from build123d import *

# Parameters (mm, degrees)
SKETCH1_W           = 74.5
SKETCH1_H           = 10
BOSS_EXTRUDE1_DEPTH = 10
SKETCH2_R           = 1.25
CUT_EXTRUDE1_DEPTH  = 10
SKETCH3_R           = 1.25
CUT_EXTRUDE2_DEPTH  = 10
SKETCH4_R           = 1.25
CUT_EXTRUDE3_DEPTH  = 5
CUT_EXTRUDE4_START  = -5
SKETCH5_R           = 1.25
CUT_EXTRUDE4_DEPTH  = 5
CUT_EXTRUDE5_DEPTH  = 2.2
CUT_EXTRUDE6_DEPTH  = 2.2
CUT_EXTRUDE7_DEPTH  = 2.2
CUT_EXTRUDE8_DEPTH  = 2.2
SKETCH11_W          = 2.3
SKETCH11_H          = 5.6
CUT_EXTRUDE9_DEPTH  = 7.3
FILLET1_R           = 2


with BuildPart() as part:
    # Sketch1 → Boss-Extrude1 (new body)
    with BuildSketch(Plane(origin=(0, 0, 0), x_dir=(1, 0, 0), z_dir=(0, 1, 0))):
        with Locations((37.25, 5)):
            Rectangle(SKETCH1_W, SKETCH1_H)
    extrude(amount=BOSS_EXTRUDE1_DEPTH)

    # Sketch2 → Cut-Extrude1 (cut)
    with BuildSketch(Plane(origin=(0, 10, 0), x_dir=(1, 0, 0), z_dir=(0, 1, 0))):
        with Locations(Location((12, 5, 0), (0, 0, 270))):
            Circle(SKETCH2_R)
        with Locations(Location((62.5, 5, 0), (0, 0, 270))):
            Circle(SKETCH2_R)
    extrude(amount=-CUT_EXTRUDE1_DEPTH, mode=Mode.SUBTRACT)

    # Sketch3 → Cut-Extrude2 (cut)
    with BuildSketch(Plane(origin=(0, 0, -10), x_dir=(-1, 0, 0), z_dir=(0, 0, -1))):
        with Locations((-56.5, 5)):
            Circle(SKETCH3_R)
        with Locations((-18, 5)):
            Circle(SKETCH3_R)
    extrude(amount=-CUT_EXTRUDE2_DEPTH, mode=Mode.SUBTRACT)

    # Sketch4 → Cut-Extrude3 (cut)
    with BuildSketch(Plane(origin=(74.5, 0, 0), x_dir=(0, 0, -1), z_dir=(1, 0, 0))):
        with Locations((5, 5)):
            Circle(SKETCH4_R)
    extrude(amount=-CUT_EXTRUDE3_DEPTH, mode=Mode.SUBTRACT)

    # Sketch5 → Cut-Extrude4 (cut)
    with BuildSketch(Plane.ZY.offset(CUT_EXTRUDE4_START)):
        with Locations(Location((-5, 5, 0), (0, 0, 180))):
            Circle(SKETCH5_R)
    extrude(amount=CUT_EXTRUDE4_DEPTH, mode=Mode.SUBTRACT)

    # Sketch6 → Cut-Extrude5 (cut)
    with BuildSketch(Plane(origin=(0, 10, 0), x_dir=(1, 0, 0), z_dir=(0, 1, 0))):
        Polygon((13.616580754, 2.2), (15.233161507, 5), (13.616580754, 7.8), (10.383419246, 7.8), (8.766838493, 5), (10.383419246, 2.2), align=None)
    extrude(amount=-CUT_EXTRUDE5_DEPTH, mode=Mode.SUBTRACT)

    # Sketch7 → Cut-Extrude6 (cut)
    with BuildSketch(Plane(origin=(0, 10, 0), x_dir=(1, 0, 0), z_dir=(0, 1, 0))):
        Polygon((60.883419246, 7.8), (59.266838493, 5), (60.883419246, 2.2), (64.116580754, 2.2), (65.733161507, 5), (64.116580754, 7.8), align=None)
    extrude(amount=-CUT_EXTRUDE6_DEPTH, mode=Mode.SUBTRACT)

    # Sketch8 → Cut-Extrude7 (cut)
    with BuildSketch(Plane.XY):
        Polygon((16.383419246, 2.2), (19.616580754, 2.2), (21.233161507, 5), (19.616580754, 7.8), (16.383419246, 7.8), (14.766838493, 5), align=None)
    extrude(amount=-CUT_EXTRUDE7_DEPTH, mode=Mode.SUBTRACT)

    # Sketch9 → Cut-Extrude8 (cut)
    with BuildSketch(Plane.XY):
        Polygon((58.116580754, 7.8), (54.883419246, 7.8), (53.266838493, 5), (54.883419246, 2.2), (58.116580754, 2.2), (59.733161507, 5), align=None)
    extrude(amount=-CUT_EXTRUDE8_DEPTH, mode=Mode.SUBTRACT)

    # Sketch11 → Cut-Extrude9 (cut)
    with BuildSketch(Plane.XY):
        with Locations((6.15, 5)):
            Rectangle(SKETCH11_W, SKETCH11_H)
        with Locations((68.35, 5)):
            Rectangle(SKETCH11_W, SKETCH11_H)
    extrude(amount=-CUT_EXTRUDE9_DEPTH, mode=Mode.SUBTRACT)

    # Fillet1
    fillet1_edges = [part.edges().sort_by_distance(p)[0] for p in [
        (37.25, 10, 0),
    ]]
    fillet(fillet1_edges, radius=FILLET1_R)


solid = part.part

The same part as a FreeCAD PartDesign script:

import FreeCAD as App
import Part
import Sketcher
from FreeCAD import Vector
Q = App.Units.Quantity


def edges_at(feature, points):
    """Names of the edges that pass closest to the given points."""
    edges = feature.Shape.Edges
    near = lambda p: min(range(len(edges)), key=lambda i: edges[i].distToShape(Part.Vertex(*p))[0])
    return sorted({f"Edge{near(p) + 1}" for p in points})

doc = App.newDocument("Part")
body = doc.addObject("PartDesign::Body", "Body")

sketch1 = body.newObject("Sketcher::SketchObject", "Sketch")
sketch1.AttachmentSupport = (doc.getObject("XZ_Plane"), [""])
sketch1.MapMode = "FlatFace"
sketch1.addGeometry([
    Part.LineSegment(Vector(0, -10, 0), Vector(0, 0, 0)),
    Part.LineSegment(Vector(0, 0, 0), Vector(74, 0, 0)),
    Part.LineSegment(Vector(74, 0, 0), Vector(74, -10, 0)),
    Part.LineSegment(Vector(74, -10, 0), Vector(0, -10, 0)),
], False)
sketch1.addConstraint([
    Sketcher.Constraint("Coincident", 0, 2, 1, 1),
    Sketcher.Constraint("Coincident", 1, 2, 2, 1),
    Sketcher.Constraint("Coincident", 2, 2, 3, 1),
    Sketcher.Constraint("Coincident", 3, 2, 0, 1),
    Sketcher.Constraint("Vertical", 0),
    Sketcher.Constraint("Horizontal", 1),
    Sketcher.Constraint("Vertical", 2),
    Sketcher.Constraint("Horizontal", 3),
    Sketcher.Constraint("Coincident", 0, 2, -1, 1),
    Sketcher.Constraint("DistanceY", 0, 1, 0, 2, 10.0),
    Sketcher.Constraint("DistanceX", 1, 1, 1, 2, 74.5),
])
pad1 = body.newObject("PartDesign::Pad", "Pad")
pad1.Profile = sketch1
pad1.Length = 10
pad1.Reversed = True

sketch2 = body.newObject("Sketcher::SketchObject", "Sketch001")
sketch2.AttachmentSupport = (doc.getObject("XZ_Plane"), [""])
sketch2.MapMode = "FlatFace"
sketch2.AttachmentOffset = App.Placement(Vector(0, 0, -10), App.Rotation())
sketch2.addGeometry([
    Part.Circle(Vector(12, -5, 0), Vector(0, 0, 1), 1.2),
    Part.Circle(Vector(62.5, -5, 0), Vector(0, 0, 1), 1.2),
], False)
sketch2.addConstraint([
    Sketcher.Constraint("Equal", 0, 1),
    Sketcher.Constraint("Horizontal", 0, 3, 1, 3),
    Sketcher.Constraint("Diameter", 0, 2.5),
    Sketcher.Constraint("DistanceX", -1, 1, 0, 3, 12.0),
    Sketcher.Constraint("DistanceY", 0, 3, -1, 1, 5.0),
    Sketcher.Constraint("DistanceX", -1, 1, 1, 3, 62.5),
])
pocket1 = body.newObject("PartDesign::Pocket", "Pocket")
pocket1.Profile = sketch2
pocket1.Length = 10
pocket1.Reversed = True

sketch3 = body.newObject("Sketcher::SketchObject", "Sketch002")
sketch3.AttachmentSupport = (doc.getObject("XY_Plane"), [""])
sketch3.MapMode = "FlatFace"
sketch3.AttachmentOffset = App.Placement(Vector(0, 0, -10), App.Rotation())
sketch3.addGeometry([
    Part.Circle(Vector(56.5, 5, 0), Vector(0, 0, 1), 1.2),
    Part.Circle(Vector(18, 5, 0), Vector(0, 0, 1), 1.2),
], False)
sketch3.addConstraint([
    Sketcher.Constraint("Equal", 0, 1),
    Sketcher.Constraint("Horizontal", 0, 3, 1, 3),
    Sketcher.Constraint("Diameter", 0, 2.5),
    Sketcher.Constraint("DistanceY", -1, 1, 0, 3, 5.0),
    Sketcher.Constraint("DistanceX", -1, 1, 1, 3, 18.0),
    Sketcher.Constraint("DistanceX", -1, 1, 0, 3, 56.5),
])
pocket2 = body.newObject("PartDesign::Pocket", "Pocket001")
pocket2.Profile = sketch3
pocket2.Length = 10
pocket2.Reversed = True

sketch4 = body.newObject("Sketcher::SketchObject", "Sketch003")
sketch4.AttachmentSupport = (doc.getObject("YZ_Plane"), [""])
sketch4.MapMode = "FlatFace"
sketch4.AttachmentOffset = App.Placement(Vector(0, 0, 74.5), App.Rotation())
sketch4.addGeometry(Part.Circle(Vector(5, -5, 0), Vector(0, 0, 1), 1.2), False)
sketch4.addConstraint([
    Sketcher.Constraint("Diameter", 0, 2.5),
    Sketcher.Constraint("DistanceX", -1, 1, 0, 3, 5.0),
    Sketcher.Constraint("DistanceY", 0, 3, -1, 1, 5.0),
])
pocket3 = body.newObject("PartDesign::Pocket", "Pocket002")
pocket3.Profile = sketch4
pocket3.Length = 5

sketch5 = body.newObject("Sketcher::SketchObject", "Sketch004")
sketch5.AttachmentSupport = (doc.getObject("YZ_Plane"), [""])
sketch5.MapMode = "FlatFace"
sketch5.AttachmentOffset = App.Placement(Vector(0, 0, 5), App.Rotation())
sketch5.addGeometry(Part.Circle(Vector(5, -5, 0), Vector(0, 0, 1), 1.2), False)
sketch5.addConstraint([
    Sketcher.Constraint("Diameter", 0, 2.5),
    Sketcher.Constraint("DistanceX", -1, 1, 0, 3, 5.0),
    Sketcher.Constraint("DistanceY", 0, 3, -1, 1, 5.0),
])
pocket4 = body.newObject("PartDesign::Pocket", "Pocket003")
pocket4.Profile = sketch5
pocket4.Length = 5

sketch6 = body.newObject("Sketcher::SketchObject", "Sketch005")
sketch6.AttachmentSupport = (doc.getObject("XZ_Plane"), [""])
sketch6.MapMode = "FlatFace"
sketch6.AttachmentOffset = App.Placement(Vector(0, 0, -10), App.Rotation())
sketch6.addGeometry([
    Part.LineSegment(Vector(13.6, -2.2, 0), Vector(15.2, -5, 0)),
    Part.LineSegment(Vector(15.2, -5, 0), Vector(13.6, -7.8, 0)),
    Part.LineSegment(Vector(13.6, -7.8, 0), Vector(10.4, -7.8, 0)),
    Part.LineSegment(Vector(10.4, -7.8, 0), Vector(8.8, -5, 0)),
    Part.LineSegment(Vector(8.8, -5, 0), Vector(10.4, -2.2, 0)),
    Part.LineSegment(Vector(10.4, -2.2, 0), Vector(13.6, -2.2, 0)),
], False)
sketch6.addConstraint([
    Sketcher.Constraint("Coincident", 0, 2, 1, 1),
    Sketcher.Constraint("Coincident", 1, 2, 2, 1),
    Sketcher.Constraint("Coincident", 2, 2, 3, 1),
    Sketcher.Constraint("Coincident", 3, 2, 4, 1),
    Sketcher.Constraint("Coincident", 4, 2, 5, 1),
    Sketcher.Constraint("Coincident", 5, 2, 0, 1),
    Sketcher.Constraint("Horizontal", 2),
    Sketcher.Constraint("Horizontal", 5),
    Sketcher.Constraint("Parallel", 0, 3),
    Sketcher.Constraint("Parallel", 1, 4),
    Sketcher.Constraint("Horizontal", 0, 2, 3, 2),
    Sketcher.Constraint("Vertical", 2, 2, 4, 2),
    Sketcher.Constraint("Vertical", 1, 2, 5, 2),
    Sketcher.Constraint("Angle", 0, Q("-60 deg")),
    Sketcher.Constraint("DistanceY", 0, 2, -1, 1, 5.0),
    Sketcher.Constraint("DistanceY", 1, 2, -1, 1, 7.8),
    Sketcher.Constraint("DistanceX", 2, 2, 2, 1, 3.233162),
    Sketcher.Constraint("DistanceX", -1, 1, 0, 2, 15.233162),
])
pocket5 = body.newObject("PartDesign::Pocket", "Pocket004")
pocket5.Profile = sketch6
pocket5.Length = 2.2
pocket5.Reversed = True

sketch7 = body.newObject("Sketcher::SketchObject", "Sketch006")
sketch7.AttachmentSupport = (doc.getObject("XZ_Plane"), [""])
sketch7.MapMode = "FlatFace"
sketch7.AttachmentOffset = App.Placement(Vector(0, 0, -10), App.Rotation())
sketch7.addGeometry([
    Part.LineSegment(Vector(60.9, -7.8, 0), Vector(59.3, -5, 0)),
    Part.LineSegment(Vector(59.3, -5, 0), Vector(60.9, -2.2, 0)),
    Part.LineSegment(Vector(60.9, -2.2, 0), Vector(64.1, -2.2, 0)),
    Part.LineSegment(Vector(64.1, -2.2, 0), Vector(65.7, -5, 0)),
    Part.LineSegment(Vector(65.7, -5, 0), Vector(64.1, -7.8, 0)),
    Part.LineSegment(Vector(64.1, -7.8, 0), Vector(60.9, -7.8, 0)),
], False)
sketch7.addConstraint([
    Sketcher.Constraint("Coincident", 0, 2, 1, 1),
    Sketcher.Constraint("Coincident", 1, 2, 2, 1),
    Sketcher.Constraint("Coincident", 2, 2, 3, 1),
    Sketcher.Constraint("Coincident", 3, 2, 4, 1),
    Sketcher.Constraint("Coincident", 4, 2, 5, 1),
    Sketcher.Constraint("Coincident", 5, 2, 0, 1),
    Sketcher.Constraint("Horizontal", 2),
    Sketcher.Constraint("Horizontal", 5),
    Sketcher.Constraint("Parallel", 0, 3),
    Sketcher.Constraint("Parallel", 1, 4),
    Sketcher.Constraint("Horizontal", 0, 2, 3, 2),
    Sketcher.Constraint("Vertical", 2, 2, 4, 2),
    Sketcher.Constraint("Vertical", 1, 2, 5, 2),
    Sketcher.Constraint("Angle", 0, Q("120 deg")),
    Sketcher.Constraint("DistanceY", 0, 2, -1, 1, 5.0),
    Sketcher.Constraint("DistanceY", 1, 2, -1, 1, 2.2),
    Sketcher.Constraint("DistanceX", 2, 1, 2, 2, 3.233162),
    Sketcher.Constraint("DistanceX", -1, 1, 0, 2, 59.266838),
])
pocket6 = body.newObject("PartDesign::Pocket", "Pocket005")
pocket6.Profile = sketch7
pocket6.Length = 2.2
pocket6.Reversed = True

sketch8 = body.newObject("Sketcher::SketchObject", "Sketch007")
sketch8.AttachmentSupport = (doc.getObject("XY_Plane"), [""])
sketch8.MapMode = "FlatFace"
sketch8.addGeometry([
    Part.LineSegment(Vector(16.4, 2.2, 0), Vector(19.6, 2.2, 0)),
    Part.LineSegment(Vector(19.6, 2.2, 0), Vector(21.2, 5, 0)),
    Part.LineSegment(Vector(21.2, 5, 0), Vector(19.6, 7.8, 0)),
    Part.LineSegment(Vector(19.6, 7.8, 0), Vector(16.4, 7.8, 0)),
    Part.LineSegment(Vector(16.4, 7.8, 0), Vector(14.8, 5, 0)),
    Part.LineSegment(Vector(14.8, 5, 0), Vector(16.4, 2.2, 0)),
], False)
sketch8.addConstraint([
    Sketcher.Constraint("Coincident", 0, 2, 1, 1),
    Sketcher.Constraint("Coincident", 1, 2, 2, 1),
    Sketcher.Constraint("Coincident", 2, 2, 3, 1),
    Sketcher.Constraint("Coincident", 3, 2, 4, 1),
    Sketcher.Constraint("Coincident", 4, 2, 5, 1),
    Sketcher.Constraint("Coincident", 5, 2, 0, 1),
    Sketcher.Constraint("Horizontal", 0),
    Sketcher.Constraint("Horizontal", 3),
    Sketcher.Constraint("Parallel", 1, 4),
    Sketcher.Constraint("Parallel", 2, 5),
    Sketcher.Constraint("Horizontal", 1, 2, 4, 2),
    Sketcher.Constraint("Vertical", 0, 2, 2, 2),
    Sketcher.Constraint("Vertical", 3, 2, 5, 2),
    Sketcher.Constraint("Angle", 1, Q("60 deg")),
    Sketcher.Constraint("DistanceY", -1, 1, 1, 2, 5.0),
    Sketcher.Constraint("DistanceY", -1, 1, 0, 2, 2.2),
    Sketcher.Constraint("DistanceX", 0, 1, 0, 2, 3.233162),
    Sketcher.Constraint("DistanceX", -1, 1, 0, 2, 19.616581),
])
pocket7 = body.newObject("PartDesign::Pocket", "Pocket006")
pocket7.Profile = sketch8
pocket7.Length = 2.2

sketch9 = body.newObject("Sketcher::SketchObject", "Sketch008")
sketch9.AttachmentSupport = (doc.getObject("XY_Plane"), [""])
sketch9.MapMode = "FlatFace"
sketch9.addGeometry([
    Part.LineSegment(Vector(58.1, 7.8, 0), Vector(54.9, 7.8, 0)),
    Part.LineSegment(Vector(54.9, 7.8, 0), Vector(53.3, 5, 0)),
    Part.LineSegment(Vector(53.3, 5, 0), Vector(54.9, 2.2, 0)),
    Part.LineSegment(Vector(54.9, 2.2, 0), Vector(58.1, 2.2, 0)),
    Part.LineSegment(Vector(58.1, 2.2, 0), Vector(59.7, 5, 0)),
    Part.LineSegment(Vector(59.7, 5, 0), Vector(58.1, 7.8, 0)),
], False)
sketch9.addConstraint([
    Sketcher.Constraint("Coincident", 0, 2, 1, 1),
    Sketcher.Constraint("Coincident", 1, 2, 2, 1),
    Sketcher.Constraint("Coincident", 2, 2, 3, 1),
    Sketcher.Constraint("Coincident", 3, 2, 4, 1),
    Sketcher.Constraint("Coincident", 4, 2, 5, 1),
    Sketcher.Constraint("Coincident", 5, 2, 0, 1),
    Sketcher.Constraint("Horizontal", 0),
    Sketcher.Constraint("Horizontal", 3),
    Sketcher.Constraint("Parallel", 1, 4),
    Sketcher.Constraint("Parallel", 2, 5),
    Sketcher.Constraint("Horizontal", 1, 2, 4, 2),
    Sketcher.Constraint("Vertical", 0, 2, 2, 2),
    Sketcher.Constraint("Vertical", 3, 2, 5, 2),
    Sketcher.Constraint("Angle", 1, Q("-120 deg")),
    Sketcher.Constraint("DistanceY", -1, 1, 1, 2, 5.0),
    Sketcher.Constraint("DistanceY", -1, 1, 0, 2, 7.8),
    Sketcher.Constraint("DistanceX", 0, 2, 0, 1, 3.233162),
    Sketcher.Constraint("DistanceX", -1, 1, 0, 2, 54.883419),
])
pocket8 = body.newObject("PartDesign::Pocket", "Pocket007")
pocket8.Profile = sketch9
pocket8.Length = 2.2

sketch10 = body.newObject("Sketcher::SketchObject", "Sketch009")
sketch10.AttachmentSupport = (doc.getObject("XY_Plane"), [""])
sketch10.MapMode = "FlatFace"
sketch10.addGeometry([
    Part.LineSegment(Vector(5, 7.8, 0), Vector(5, 2.2, 0)),
    Part.LineSegment(Vector(5, 2.2, 0), Vector(7.3, 2.2, 0)),
    Part.LineSegment(Vector(7.3, 2.2, 0), Vector(7.3, 7.8, 0)),
    Part.LineSegment(Vector(7.3, 7.8, 0), Vector(5, 7.8, 0)),
    Part.LineSegment(Vector(67.2, 7.8, 0), Vector(67.2, 2.2, 0)),
    Part.LineSegment(Vector(67.2, 2.2, 0), Vector(69.5, 2.2, 0)),
    Part.LineSegment(Vector(69.5, 2.2, 0), Vector(69.5, 7.8, 0)),
    Part.LineSegment(Vector(69.5, 7.8, 0), Vector(67.2, 7.8, 0)),
], False)
sketch10.addConstraint([
    Sketcher.Constraint("Coincident", 0, 2, 1, 1),
    Sketcher.Constraint("Coincident", 1, 2, 2, 1),
    Sketcher.Constraint("Coincident", 2, 2, 3, 1),
    Sketcher.Constraint("Coincident", 3, 2, 0, 1),
    Sketcher.Constraint("Coincident", 4, 2, 5, 1),
    Sketcher.Constraint("Coincident", 5, 2, 6, 1),
    Sketcher.Constraint("Coincident", 6, 2, 7, 1),
    Sketcher.Constraint("Coincident", 7, 2, 4, 1),
    Sketcher.Constraint("Vertical", 0),
    Sketcher.Constraint("Horizontal", 1),
    Sketcher.Constraint("Vertical", 2),
    Sketcher.Constraint("Horizontal", 3),
    Sketcher.Constraint("Vertical", 4),
    Sketcher.Constraint("Horizontal", 5),
    Sketcher.Constraint("Vertical", 6),
    Sketcher.Constraint("Horizontal", 7),
    Sketcher.Constraint("Horizontal", 1, 2, 4, 2),
    Sketcher.Constraint("Horizontal", 3, 2, 6, 2),
    Sketcher.Constraint("Equal", 3, 5),
    Sketcher.Constraint("DistanceX", 1, 1, 1, 2, 2.3),
    Sketcher.Constraint("DistanceY", 0, 2, 0, 1, 5.6),
    Sketcher.Constraint("DistanceX", -1, 1, 0, 2, 5.0),
    Sketcher.Constraint("DistanceY", -1, 1, 0, 2, 2.2),
    Sketcher.Constraint("DistanceX", -1, 1, 4, 2, 67.2),
])
pocket9 = body.newObject("PartDesign::Pocket", "Pocket008")
pocket9.Profile = sketch10
pocket9.Length = 7.3
doc.recompute()

fillet = body.newObject("PartDesign::Fillet", "Fillet")
fillet.Base = (pocket9, edges_at(pocket9, [(37.25, 10, 0)]))
fillet.Radius = 2

doc.recompute()
